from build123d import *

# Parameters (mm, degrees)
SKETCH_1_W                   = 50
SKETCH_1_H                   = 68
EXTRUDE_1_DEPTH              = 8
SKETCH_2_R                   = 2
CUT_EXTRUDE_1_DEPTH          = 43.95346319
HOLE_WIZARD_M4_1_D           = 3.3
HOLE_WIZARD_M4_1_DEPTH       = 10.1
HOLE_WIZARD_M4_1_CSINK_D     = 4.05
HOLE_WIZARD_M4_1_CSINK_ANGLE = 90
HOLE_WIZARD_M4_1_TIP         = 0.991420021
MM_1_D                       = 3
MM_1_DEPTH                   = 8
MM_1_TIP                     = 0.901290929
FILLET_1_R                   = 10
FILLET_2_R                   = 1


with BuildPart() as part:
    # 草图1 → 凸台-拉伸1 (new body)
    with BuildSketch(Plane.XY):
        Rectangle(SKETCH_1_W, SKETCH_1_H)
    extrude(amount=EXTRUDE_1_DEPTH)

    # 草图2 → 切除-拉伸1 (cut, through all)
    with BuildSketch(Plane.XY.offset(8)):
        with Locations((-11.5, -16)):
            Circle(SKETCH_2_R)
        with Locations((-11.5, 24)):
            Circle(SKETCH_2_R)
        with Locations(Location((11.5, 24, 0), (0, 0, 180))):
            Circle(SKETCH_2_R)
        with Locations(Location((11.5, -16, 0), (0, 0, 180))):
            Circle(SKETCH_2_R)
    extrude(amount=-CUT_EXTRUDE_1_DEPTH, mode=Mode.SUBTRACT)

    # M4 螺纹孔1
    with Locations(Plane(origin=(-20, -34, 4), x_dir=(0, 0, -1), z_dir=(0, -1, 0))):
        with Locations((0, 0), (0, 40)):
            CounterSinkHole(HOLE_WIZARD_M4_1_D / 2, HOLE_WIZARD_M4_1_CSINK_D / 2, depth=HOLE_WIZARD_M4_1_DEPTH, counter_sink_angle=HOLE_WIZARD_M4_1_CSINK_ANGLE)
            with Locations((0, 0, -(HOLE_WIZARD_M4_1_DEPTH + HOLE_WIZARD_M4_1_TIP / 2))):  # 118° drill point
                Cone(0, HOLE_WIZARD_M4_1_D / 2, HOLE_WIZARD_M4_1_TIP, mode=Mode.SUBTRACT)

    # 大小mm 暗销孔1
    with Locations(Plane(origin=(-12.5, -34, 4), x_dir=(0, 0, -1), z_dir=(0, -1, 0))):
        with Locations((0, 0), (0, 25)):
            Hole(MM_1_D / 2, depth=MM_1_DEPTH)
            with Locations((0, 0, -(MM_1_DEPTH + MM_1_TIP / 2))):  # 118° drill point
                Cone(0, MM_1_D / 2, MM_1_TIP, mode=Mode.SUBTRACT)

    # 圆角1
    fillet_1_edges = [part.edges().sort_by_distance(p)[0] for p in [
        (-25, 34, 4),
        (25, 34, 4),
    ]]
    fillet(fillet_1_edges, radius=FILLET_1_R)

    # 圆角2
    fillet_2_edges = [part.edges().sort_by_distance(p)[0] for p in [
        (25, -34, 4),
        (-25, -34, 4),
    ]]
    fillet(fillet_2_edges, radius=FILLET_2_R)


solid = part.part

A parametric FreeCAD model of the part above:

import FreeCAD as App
import Part
import Sketcher
Q = App.Units.Quantity


def edges_at(feature, points):
    """Names of the edges that pass closest to the given points."""
    edges = feature.Shape.Edges
    near = lambda p: min(range(len(edges)), key=lambda i: edges[i].distToShape(Part.Vertex(*p))[0])
    return sorted({f"Edge{near(p) + 1}" for p in points})


def add_polygon(sketch, points):
    """Adds a closed chain of lines whose ends are joined by coincident constraints."""
    first, n = sketch.GeometryCount, len(points)
    for a, b in zip(points, points[1:] + points[:1]):
        sketch.addGeometry(Part.LineSegment(App.Vector(*a, 0), App.Vector(*b, 0)), False)
    for i in range(n):
        sketch.addConstraint(Sketcher.Constraint("Coincident", first + i, 2, first + (i + 1) % n, 1))

doc = App.newDocument("Part")
body = doc.addObject("PartDesign::Body", "Body")

# Sketch on XY plane
sketch1 = body.newObject("Sketcher::SketchObject", "Sketch")
sketch1.AttachmentSupport = (doc.getObject("XY_Plane"), [""])
sketch1.MapMode = "FlatFace"
add_polygon(sketch1, [(-25, 34), (-25, -34), (25, -34), (25, 34)])  # lines 0-3
sketch1.addConstraint(Sketcher.Constraint("Vertical", 0))
sketch1.addConstraint(Sketcher.Constraint("Horizontal", 1))
sketch1.addConstraint(Sketcher.Constraint("Vertical", 2))
sketch1.addConstraint(Sketcher.Constraint("Horizontal", 3))
sketch1.addConstraint(Sketcher.Constraint("Symmetric", 0, 2, 2, 2, -1, 1))
sketch1.addConstraint(Sketcher.Constraint("DistanceX", 1, 1, 1, 2, Q("50 mm")))
sketch1.addConstraint(Sketcher.Constraint("DistanceY", 0, 2, 0, 1, Q("68 mm")))
pad1 = body.newObject("PartDesign::Pad", "Pad")
pad1.Profile = sketch1
pad1.Length = 8

# Sketch on XY plane
sketch2 = body.newObject("Sketcher::SketchObject", "Sketch001")
sketch2.AttachmentSupport = (doc.getObject("XY_Plane"), [""])
sketch2.MapMode = "FlatFace"
sketch2.AttachmentOffset = App.Placement(App.Vector(0, 0, 8), App.Rotation())
sketch2.addGeometry(Part.Circle(App.Vector(-11.5, -16, 0), App.Vector(0, 0, 1), 2), False)
sketch2.addGeometry(Part.Circle(App.Vector(-11.5, 24, 0), App.Vector(0, 0, 1), 2), False)
sketch2.addGeometry(Part.Circle(App.Vector(11.5, 24, 0), App.Vector(0, 0, 1), 2), False)
sketch2.addGeometry(Part.Circle(App.Vector(11.5, -16, 0), App.Vector(0, 0, 1), 2), False)
sketch2.addConstraint(Sketcher.Constraint("Equal", 0, 1))
sketch2.addConstraint(Sketcher.Constraint("Equal", 1, 2))
sketch2.addConstraint(Sketcher.Constraint("Equal", 2, 3))
sketch2.addConstraint(Sketcher.Constraint("Symmetric", 1, 3, 2, 3, -2))
sketch2.addConstraint(Sketcher.Constraint("Symmetric", 0, 3, 3, 3, -2))
sketch2.addConstraint(Sketcher.Constraint("Vertical", 0, 3, 1, 3))
sketch2.addConstraint(Sketcher.Constraint("Diameter", 0, Q("4 mm")))
sketch2.addConstraint(Sketcher.Constraint("DistanceY", 0, 3, -1, 1, Q("16 mm")))
sketch2.addConstraint(Sketcher.Constraint("DistanceY", -1, 1, 1, 3, Q("24 mm")))
sketch2.addConstraint(Sketcher.Constraint("DistanceX", 1, 3, 2, 3, Q("23 mm")))
pocket1 = body.newObject("PartDesign::Pocket", "Pocket")
pocket1.Profile = sketch2
pocket1.Type = "ThroughAll"

# Sketch on XZ plane
sketch3 = body.newObject("Sketcher::SketchObject", "Sketch002")
sketch3.AttachmentSupport = (doc.getObject("XZ_Plane"), [""])
sketch3.MapMode = "FlatFace"
sketch3.AttachmentOffset = App.Placement(App.Vector(0, 0, 34), App.Rotation())
sketch3.addGeometry(Part.Circle(App.Vector(-20, 4, 0), App.Vector(0, 0, 1), 1.6), False)
sketch3.addGeometry(Part.Circle(App.Vector(20, 4, 0), App.Vector(0, 0, 1), 1.6), False)
sketch3.addConstraint(Sketcher.Constraint("Equal", 0, 1))
sketch3.addConstraint(Sketcher.Constraint("Symmetric", 0, 3, 1, 3, -2))
sketch3.addConstraint(Sketcher.Constraint("Diameter", 0, Q("3.3 mm")))
sketch3.addConstraint(Sketcher.Constraint("DistanceX", 0, 3, -1, 1, Q("20 mm")))
sketch3.addConstraint(Sketcher.Constraint("DistanceY", -1, 1, 0, 3, Q("4 mm")))
doc.recompute()
hole = body.newObject("PartDesign::Hole", "Hole")
hole.Profile = sketch3
hole.ThreadType = "None"
hole.Diameter = 3.3
hole.DepthType = "Dimension"
hole.Depth = 10.1
hole.DrillPoint = "Angled"
hole.DrillPointAngle = 118
hole.HoleCutType = "Countersink"
hole.HoleCutDiameter = 4.05
hole.HoleCutCountersinkAngle = 90

# Sketch on XZ plane
sketch4 = body.newObject("Sketcher::SketchObject", "Sketch003")
sketch4.AttachmentSupport = (doc.getObject("XZ_Plane"), [""])
sketch4.MapMode = "FlatFace"
sketch4.AttachmentOffset = App.Placement(App.Vector(0, 0, 34), App.Rotation())
sketch4.addGeometry(Part.Circle(App.Vector(-12.5, 4, 0), App.Vector(0, 0, 1), 1.5), False)
sketch4.addGeometry(Part.Circle(App.Vector(12.5, 4, 0), App.Vector(0, 0, 1), 1.5), False)
sketch4.addConstraint(Sketcher.Constraint("Equal", 0, 1))
sketch4.addConstraint(Sketcher.Constraint("Symmetric", 0, 3, 1, 3, -2))
sketch4.addConstraint(Sketcher.Constraint("Diameter", 0, Q("3 mm")))
sketch4.addConstraint(Sketcher.Constraint("DistanceY", -1, 1, 0, 3, Q("4 mm")))
sketch4.addConstraint(Sketcher.Constraint("DistanceX", 0, 3, 1, 3, Q("25 mm")))
doc.recompute()
hole2 = body.newObject("PartDesign::Hole", "Hole001")
hole2.Profile = sketch4
hole2.ThreadType = "None"
hole2.Diameter = 3
hole2.DepthType = "Dimension"
hole2.Depth = 8
hole2.DrillPoint = "Angled"
hole2.DrillPointAngle = 118
doc.recompute()

fillet = body.newObject("PartDesign::Fillet", "Fillet")
fillet.Base = (hole2, edges_at(hole2, [(-25, 34, 4), (25, 34, 4)]))
fillet.Radius = 10
doc.recompute()

fillet2 = body.newObject("PartDesign::Fillet", "Fillet001")
fillet2.Base = (fillet, edges_at(fillet, [(25, -34, 4), (-25, -34, 4)]))
fillet2.Radius = 1

doc.recompute()
